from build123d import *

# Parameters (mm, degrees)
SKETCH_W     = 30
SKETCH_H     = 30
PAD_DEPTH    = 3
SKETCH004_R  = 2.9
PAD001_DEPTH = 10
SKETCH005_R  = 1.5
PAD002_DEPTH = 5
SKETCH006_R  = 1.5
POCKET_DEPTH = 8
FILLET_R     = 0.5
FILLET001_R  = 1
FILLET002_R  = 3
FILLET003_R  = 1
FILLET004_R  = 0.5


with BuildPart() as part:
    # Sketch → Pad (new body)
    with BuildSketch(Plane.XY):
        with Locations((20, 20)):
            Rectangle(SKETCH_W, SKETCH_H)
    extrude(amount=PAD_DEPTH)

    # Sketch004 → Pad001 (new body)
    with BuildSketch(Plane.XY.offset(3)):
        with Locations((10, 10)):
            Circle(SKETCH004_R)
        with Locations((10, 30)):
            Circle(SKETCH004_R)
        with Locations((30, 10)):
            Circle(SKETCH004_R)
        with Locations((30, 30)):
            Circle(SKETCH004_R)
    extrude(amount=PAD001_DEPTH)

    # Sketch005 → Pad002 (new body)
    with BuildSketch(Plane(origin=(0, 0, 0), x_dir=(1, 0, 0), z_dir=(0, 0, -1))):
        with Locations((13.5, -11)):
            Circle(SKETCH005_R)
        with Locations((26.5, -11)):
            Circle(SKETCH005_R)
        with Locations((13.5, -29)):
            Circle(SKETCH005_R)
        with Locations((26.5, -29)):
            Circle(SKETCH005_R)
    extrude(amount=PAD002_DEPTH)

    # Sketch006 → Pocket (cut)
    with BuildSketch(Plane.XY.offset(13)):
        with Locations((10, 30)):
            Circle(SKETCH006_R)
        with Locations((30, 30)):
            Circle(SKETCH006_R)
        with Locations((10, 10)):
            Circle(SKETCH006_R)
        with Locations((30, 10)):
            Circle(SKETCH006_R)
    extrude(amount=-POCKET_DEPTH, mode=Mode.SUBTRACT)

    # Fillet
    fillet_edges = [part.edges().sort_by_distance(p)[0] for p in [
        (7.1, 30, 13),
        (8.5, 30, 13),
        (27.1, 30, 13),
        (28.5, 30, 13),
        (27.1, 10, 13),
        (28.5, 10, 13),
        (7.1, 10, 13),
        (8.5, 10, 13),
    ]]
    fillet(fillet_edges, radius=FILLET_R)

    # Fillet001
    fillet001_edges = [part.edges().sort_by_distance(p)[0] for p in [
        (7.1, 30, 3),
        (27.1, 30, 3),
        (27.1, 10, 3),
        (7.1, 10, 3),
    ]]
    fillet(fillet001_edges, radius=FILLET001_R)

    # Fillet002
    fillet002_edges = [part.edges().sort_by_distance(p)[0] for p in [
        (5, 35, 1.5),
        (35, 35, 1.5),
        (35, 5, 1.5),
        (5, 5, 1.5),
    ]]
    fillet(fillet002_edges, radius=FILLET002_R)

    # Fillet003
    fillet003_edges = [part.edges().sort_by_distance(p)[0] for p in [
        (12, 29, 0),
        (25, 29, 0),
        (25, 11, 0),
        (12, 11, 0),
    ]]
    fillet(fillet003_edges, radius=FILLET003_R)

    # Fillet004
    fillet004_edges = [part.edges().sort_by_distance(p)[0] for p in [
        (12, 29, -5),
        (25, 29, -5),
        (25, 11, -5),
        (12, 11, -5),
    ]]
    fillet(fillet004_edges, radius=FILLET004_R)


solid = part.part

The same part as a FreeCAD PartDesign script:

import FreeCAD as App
import Part
import Sketcher
from FreeCAD import Vector


def edges_at(feature, points):
    """Names of the edges that pass closest to the given points."""
    edges = feature.Shape.Edges
    near = lambda p: min(range(len(edges)), key=lambda i: edges[i].distToShape(Part.Vertex(*p))[0])
    return sorted({f"Edge{near(p) + 1}" for p in points})


def add_polygon(sketch, points):
    """Adds a closed chain of lines whose ends are joined by coincident constraints."""
    first, n = sketch.GeometryCount, len(points)
    for a, b in zip(points, points[1:] + points[:1]):
        sketch.addGeometry(Part.LineSegment(App.Vector(*a, 0), App.Vector(*b, 0)), False)
    for i in range(n):
        sketch.addConstraint(Sketcher.Constraint("Coincident", first + i, 2, first + (i + 1) % n, 1))

doc = App.newDocument("Part")
body = doc.addObject("PartDesign::Body", "Body")

# Sketch on XY plane
sketch1 = body.newObject("Sketcher::SketchObject", "Sketch")
sketch1.AttachmentSupport = (doc.getObject("XY_Plane"), [""])
sketch1.MapMode = "FlatFace"
add_polygon(sketch1, [(5, 35), (5, 5), (35, 5), (35, 35)])  # lines 0-3
sketch1.addConstraint(Sketcher.Constraint("Vertical", 0))
sketch1.addConstraint(Sketcher.Constraint("Horizontal", 1))
sketch1.addConstraint(Sketcher.Constraint("Vertical", 2))
sketch1.addConstraint(Sketcher.Constraint("Horizontal", 3))
sketch1.addConstraint(Sketcher.Constraint("Equal", 3, 0))
sketch1.addConstraint(Sketcher.Constraint("DistanceX", 1, 1, 1, 2, 30.0))
sketch1.addConstraint(Sketcher.Constraint("DistanceX", -1, 1, 0, 2, 5.0))
sketch1.addConstraint(Sketcher.Constraint("DistanceY", -1, 1, 0, 2, 5.0))
pad1 = body.newObject("PartDesign::Pad", "Pad")
pad1.Profile = sketch1
pad1.Length = 3

# Sketch on XY plane
sketch2 = body.newObject("Sketcher::SketchObject", "Sketch001")
sketch2.AttachmentSupport = (doc.getObject("XY_Plane"), [""])
sketch2.MapMode = "FlatFace"
sketch2.AttachmentOffset = App.Placement(Vector(0, 0, 3), App.Rotation())
sketch2.addGeometry(Part.Circle(Vector(10, 10, 0), Vector(0, 0, 1), 2.9), False)
sketch2.addGeometry(Part.Circle(Vector(10, 30, 0), Vector(0, 0, 1), 2.9), False)
sketch2.addGeometry(Part.Circle(Vector(30, 10, 0), Vector(0, 0, 1), 2.9), False)
sketch2.addGeometry(Part.Circle(Vector(30, 30, 0), Vector(0, 0, 1), 2.9), False)
sketch2.addConstraint(Sketcher.Constraint("Equal", 0, 1))
sketch2.addConstraint(Sketcher.Constraint("Equal", 1, 2))
sketch2.addConstraint(Sketcher.Constraint("Equal", 2, 3))
sketch2.addConstraint(Sketcher.Constraint("Horizontal", 0, 3, 2, 3))
sketch2.addConstraint(Sketcher.Constraint("Horizontal", 1, 3, 3, 3))
sketch2.addConstraint(Sketcher.Constraint("Vertical", 0, 3, 1, 3))
sketch2.addConstraint(Sketcher.Constraint("Vertical", 2, 3, 3, 3))
sketch2.addConstraint(Sketcher.Constraint("Diameter", 0, 5.8))
sketch2.addConstraint(Sketcher.Constraint("DistanceX", -1, 1, 0, 3, 10.0))
sketch2.addConstraint(Sketcher.Constraint("DistanceY", -1, 1, 0, 3, 10.0))
sketch2.addConstraint(Sketcher.Constraint("DistanceY", -1, 1, 1, 3, 30.0))
sketch2.addConstraint(Sketcher.Constraint("DistanceX", -1, 1, 2, 3, 30.0))
pad2 = body.newObject("PartDesign::Pad", "Pad001")
pad2.Profile = sketch2
pad2.Length = 10

# Sketch on XY plane
sketch3 = body.newObject("Sketcher::SketchObject", "Sketch002")
sketch3.AttachmentSupport = (doc.getObject("XY_Plane"), [""])
sketch3.MapMode = "FlatFace"
sketch3.addGeometry(Part.Circle(Vector(13.5, 11, 0), Vector(0, 0, 1), 1.5), False)
sketch3.addGeometry(Part.Circle(Vector(26.5, 11, 0), Vector(0, 0, 1), 1.5), False)
sketch3.addGeometry(Part.Circle(Vector(13.5, 29, 0), Vector(0, 0, 1), 1.5), False)
sketch3.addGeometry(Part.Circle(Vector(26.5, 29, 0), Vector(0, 0, 1), 1.5), False)
sketch3.addConstraint(Sketcher.Constraint("Equal", 0, 1))
sketch3.addConstraint(Sketcher.Constraint("Equal", 1, 2))
sketch3.addConstraint(Sketcher.Constraint("Equal", 2, 3))
sketch3.addConstraint(Sketcher.Constraint("Horizontal", 0, 3, 1, 3))
sketch3.addConstraint(Sketcher.Constraint("Horizontal", 2, 3, 3, 3))
sketch3.addConstraint(Sketcher.Constraint("Vertical", 0, 3, 2, 3))
sketch3.addConstraint(Sketcher.Constraint("Vertical", 1, 3, 3, 3))
sketch3.addConstraint(Sketcher.Constraint("Diameter", 0, 3.0))
sketch3.addConstraint(Sketcher.Constraint("DistanceY", -1, 1, 0, 3, 11.0))
sketch3.addConstraint(Sketcher.Constraint("DistanceY", -1, 1, 2, 3, 29.0))
sketch3.addConstraint(Sketcher.Constraint("DistanceX", 0, 3, 1, 3, 13.0))
sketch3.addConstraint(Sketcher.Constraint("DistanceX", -1, 1, 0, 3, 13.5))
pad3 = body.newObject("PartDesign::Pad", "Pad002")
pad3.Profile = sketch3
pad3.Length = 5
pad3.Reversed = True

# Sketch on XY plane
sketch4 = body.newObject("Sketcher::SketchObject", "Sketch003")
sketch4.AttachmentSupport = (doc.getObject("XY_Plane"), [""])
sketch4.MapMode = "FlatFace"
sketch4.AttachmentOffset = App.Placement(Vector(0, 0, 13), App.Rotation())
sketch4.addGeometry(Part.Circle(Vector(10, 30, 0), Vector(0, 0, 1), 1.5), False)
sketch4.addGeometry(Part.Circle(Vector(30, 30, 0), Vector(0, 0, 1), 1.5), False)
sketch4.addGeometry(Part.Circle(Vector(10, 10, 0), Vector(0, 0, 1), 1.5), False)
sketch4.addGeometry(Part.Circle(Vector(30, 10, 0), Vector(0, 0, 1), 1.5), False)
sketch4.addConstraint(Sketcher.Constraint("Equal", 0, 1))
sketch4.addConstraint(Sketcher.Constraint("Equal", 1, 2))
sketch4.addConstraint(Sketcher.Constraint("Equal", 2, 3))
sketch4.addConstraint(Sketcher.Constraint("Horizontal", 0, 3, 1, 3))
sketch4.addConstraint(Sketcher.Constraint("Horizontal", 2, 3, 3, 3))
sketch4.addConstraint(Sketcher.Constraint("Vertical", 0, 3, 2, 3))
sketch4.addConstraint(Sketcher.Constraint("Vertical", 1, 3, 3, 3))
sketch4.addConstraint(Sketcher.Constraint("Diameter", 0, 3.0))
sketch4.addConstraint(Sketcher.Constraint("DistanceX", -1, 1, 0, 3, 10.0))
sketch4.addConstraint(Sketcher.Constraint("DistanceY", -1, 1, 0, 3, 30.0))
sketch4.addConstraint(Sketcher.Constraint("DistanceX", -1, 1, 1, 3, 30.0))
sketch4.addConstraint(Sketcher.Constraint("DistanceY", -1, 1, 2, 3, 10.0))
pocket1 = body.newObject("PartDesign::Pocket", "Pocket")
pocket1.Profile = sketch4
pocket1.Length = 8
doc.recompute()

fillet = body.newObject("PartDesign::Fillet", "Fillet")
fillet.Base = (pocket1, edges_at(pocket1, [
    (7.1, 30, 13),
    (8.5, 30, 13),
    (27.1, 30, 13),
    (28.5, 30, 13),
    (27.1, 10, 13),
    (28.5, 10, 13),
    (7.1, 10, 13),
    (8.5, 10, 13),
]))
fillet.Radius = 0.5
doc.recompute()

fillet2 = body.newObject("PartDesign::Fillet", "Fillet001")
fillet2.Base = (fillet, edges_at(fillet, [
    (7.1, 30, 3),
    (27.1, 30, 3),
    (27.1, 10, 3),
    (7.1, 10, 3),
]))
fillet2.Radius = 1
doc.recompute()

fillet3 = body.newObject("PartDesign::Fillet", "Fillet002")
fillet3.Base = (fillet2, edges_at(fillet2, [
    (5, 35, 1.5),
    (35, 35, 1.5),
    (35, 5, 1.5),
    (5, 5, 1.5),
]))
fillet3.Radius = 3
doc.recompute()

fillet4 = body.newObject("PartDesign::Fillet", "Fillet003")
fillet4.Base = (fillet3, edges_at(fillet3, [
    (12, 29, 0),
    (25, 29, 0),
    (25, 11, 0),
    (12, 11, 0),
]))
fillet4.Radius = 1
doc.recompute()

fillet5 = body.newObject("PartDesign::Fillet", "Fillet004")
fillet5.Base = (fillet4, edges_at(fillet4, [
    (12, 29, -5),
    (25, 29, -5),
    (25, 11, -5),
    (12, 11, -5),
]))
fillet5.Radius = 0.5

doc.recompute()
